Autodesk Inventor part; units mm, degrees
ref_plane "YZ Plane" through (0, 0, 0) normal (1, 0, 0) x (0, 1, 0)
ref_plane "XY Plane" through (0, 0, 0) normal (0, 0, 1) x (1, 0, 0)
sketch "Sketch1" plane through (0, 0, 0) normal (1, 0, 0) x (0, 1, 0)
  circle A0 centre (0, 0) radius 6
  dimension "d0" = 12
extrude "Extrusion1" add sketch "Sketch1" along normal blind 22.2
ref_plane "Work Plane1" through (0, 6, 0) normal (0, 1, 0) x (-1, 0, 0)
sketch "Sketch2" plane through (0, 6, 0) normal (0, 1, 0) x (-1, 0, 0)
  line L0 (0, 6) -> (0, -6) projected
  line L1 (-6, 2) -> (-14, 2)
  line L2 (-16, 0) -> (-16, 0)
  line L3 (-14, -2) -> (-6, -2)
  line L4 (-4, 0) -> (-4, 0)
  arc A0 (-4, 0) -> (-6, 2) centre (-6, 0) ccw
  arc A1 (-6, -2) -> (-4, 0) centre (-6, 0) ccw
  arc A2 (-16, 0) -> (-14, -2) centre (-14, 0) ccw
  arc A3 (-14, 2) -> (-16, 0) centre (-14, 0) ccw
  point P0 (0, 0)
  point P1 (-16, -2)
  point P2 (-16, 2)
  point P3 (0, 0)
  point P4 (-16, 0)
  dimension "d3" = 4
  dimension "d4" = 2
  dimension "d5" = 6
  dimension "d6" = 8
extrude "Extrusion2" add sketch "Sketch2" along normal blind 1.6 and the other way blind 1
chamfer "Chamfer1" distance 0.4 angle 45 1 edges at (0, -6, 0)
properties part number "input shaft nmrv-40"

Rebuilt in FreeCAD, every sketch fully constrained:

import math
import FreeCAD as App
import Part
import Sketcher

V = App.Vector
Q = App.Units.Quantity


def edges_at(feature, points):
    """Names of the edges that pass closest to the given points."""
    edges = feature.Shape.Edges
    near = lambda p: min(range(len(edges)), key=lambda i: edges[i].distToShape(Part.Vertex(*p))[0])
    return sorted({f"Edge{near(p) + 1}" for p in points})

doc = App.newDocument("Part")
body = doc.addObject("PartDesign::Body", "Body")

# Sketch on YZ plane
sketch1 = body.newObject("Sketcher::SketchObject", "Sketch")
sketch1.AttachmentSupport = (doc.getObject("YZ_Plane"), [""])
sketch1.MapMode = "FlatFace"
sketch1.addGeometry(Part.Circle(V(0, 0, 0), V(0, 0, 1), 6), False)
sketch1.addConstraint(Sketcher.Constraint("Coincident", 0, 3, -1, 1))
sketch1.addConstraint(Sketcher.Constraint("Diameter", 0, Q("12 mm")))
pad1 = body.newObject("PartDesign::Pad", "Pad")
pad1.Profile = sketch1
pad1.Length = 22.2

# Sketch on XZ plane
sketch2 = body.newObject("Sketcher::SketchObject", "Sketch001")
sketch2.AttachmentSupport = (doc.getObject("XZ_Plane"), [""])
sketch2.MapMode = "FlatFace"
sketch2.AttachmentOffset = App.Placement(V(0, 0, -6), App.Rotation())
sketch2.addGeometry(Part.ArcOfCircle(Part.Circle(V(6, 0, 0), V(0, 0, 1), 2), math.radians(90), math.radians(270)), False)
sketch2.addGeometry(Part.LineSegment(V(6, 2, 0), V(14, 2, 0)), False)
sketch2.addGeometry(Part.ArcOfCircle(Part.Circle(V(14, 0, 0), V(0, 0, 1), 2), math.radians(-90), math.radians(90)), False)
sketch2.addGeometry(Part.LineSegment(V(14, -2, 0), V(6, -2, 0)), False)
sketch2.addConstraint(Sketcher.Constraint("Tangent", 0, 1, 1, 1))
sketch2.addConstraint(Sketcher.Constraint("Tangent", 1, 2, 2, 2))
sketch2.addConstraint(Sketcher.Constraint("Tangent", 2, 1, 3, 1))
sketch2.addConstraint(Sketcher.Constraint("Tangent", 3, 2, 0, 2))
sketch2.addConstraint(Sketcher.Constraint("Horizontal", 1))
sketch2.addConstraint(Sketcher.Constraint("Horizontal", 3))
sketch2.addConstraint(Sketcher.Constraint("PointOnObject", 0, 3, -1))
sketch2.addConstraint(Sketcher.Constraint("Radius", 0, Q("2 mm")))
sketch2.addConstraint(Sketcher.Constraint("DistanceX", 1, 1, 1, 2, Q("8 mm")))
sketch2.addConstraint(Sketcher.Constraint("DistanceX", -1, 1, 0, 3, Q("6 mm")))
pad2 = body.newObject("PartDesign::Pad", "Pad001")
pad2.Profile = sketch2
pad2.Type = "TwoLengths"
pad2.Length = 1.6
pad2.Length2 = 1
pad2.Reversed = True
doc.recompute()

chamfer = body.newObject("PartDesign::Chamfer", "Chamfer")
chamfer.Base = (pad2, edges_at(pad2, [(0, -6, 0)]))
chamfer.Size = 0.4

doc.recompute()
